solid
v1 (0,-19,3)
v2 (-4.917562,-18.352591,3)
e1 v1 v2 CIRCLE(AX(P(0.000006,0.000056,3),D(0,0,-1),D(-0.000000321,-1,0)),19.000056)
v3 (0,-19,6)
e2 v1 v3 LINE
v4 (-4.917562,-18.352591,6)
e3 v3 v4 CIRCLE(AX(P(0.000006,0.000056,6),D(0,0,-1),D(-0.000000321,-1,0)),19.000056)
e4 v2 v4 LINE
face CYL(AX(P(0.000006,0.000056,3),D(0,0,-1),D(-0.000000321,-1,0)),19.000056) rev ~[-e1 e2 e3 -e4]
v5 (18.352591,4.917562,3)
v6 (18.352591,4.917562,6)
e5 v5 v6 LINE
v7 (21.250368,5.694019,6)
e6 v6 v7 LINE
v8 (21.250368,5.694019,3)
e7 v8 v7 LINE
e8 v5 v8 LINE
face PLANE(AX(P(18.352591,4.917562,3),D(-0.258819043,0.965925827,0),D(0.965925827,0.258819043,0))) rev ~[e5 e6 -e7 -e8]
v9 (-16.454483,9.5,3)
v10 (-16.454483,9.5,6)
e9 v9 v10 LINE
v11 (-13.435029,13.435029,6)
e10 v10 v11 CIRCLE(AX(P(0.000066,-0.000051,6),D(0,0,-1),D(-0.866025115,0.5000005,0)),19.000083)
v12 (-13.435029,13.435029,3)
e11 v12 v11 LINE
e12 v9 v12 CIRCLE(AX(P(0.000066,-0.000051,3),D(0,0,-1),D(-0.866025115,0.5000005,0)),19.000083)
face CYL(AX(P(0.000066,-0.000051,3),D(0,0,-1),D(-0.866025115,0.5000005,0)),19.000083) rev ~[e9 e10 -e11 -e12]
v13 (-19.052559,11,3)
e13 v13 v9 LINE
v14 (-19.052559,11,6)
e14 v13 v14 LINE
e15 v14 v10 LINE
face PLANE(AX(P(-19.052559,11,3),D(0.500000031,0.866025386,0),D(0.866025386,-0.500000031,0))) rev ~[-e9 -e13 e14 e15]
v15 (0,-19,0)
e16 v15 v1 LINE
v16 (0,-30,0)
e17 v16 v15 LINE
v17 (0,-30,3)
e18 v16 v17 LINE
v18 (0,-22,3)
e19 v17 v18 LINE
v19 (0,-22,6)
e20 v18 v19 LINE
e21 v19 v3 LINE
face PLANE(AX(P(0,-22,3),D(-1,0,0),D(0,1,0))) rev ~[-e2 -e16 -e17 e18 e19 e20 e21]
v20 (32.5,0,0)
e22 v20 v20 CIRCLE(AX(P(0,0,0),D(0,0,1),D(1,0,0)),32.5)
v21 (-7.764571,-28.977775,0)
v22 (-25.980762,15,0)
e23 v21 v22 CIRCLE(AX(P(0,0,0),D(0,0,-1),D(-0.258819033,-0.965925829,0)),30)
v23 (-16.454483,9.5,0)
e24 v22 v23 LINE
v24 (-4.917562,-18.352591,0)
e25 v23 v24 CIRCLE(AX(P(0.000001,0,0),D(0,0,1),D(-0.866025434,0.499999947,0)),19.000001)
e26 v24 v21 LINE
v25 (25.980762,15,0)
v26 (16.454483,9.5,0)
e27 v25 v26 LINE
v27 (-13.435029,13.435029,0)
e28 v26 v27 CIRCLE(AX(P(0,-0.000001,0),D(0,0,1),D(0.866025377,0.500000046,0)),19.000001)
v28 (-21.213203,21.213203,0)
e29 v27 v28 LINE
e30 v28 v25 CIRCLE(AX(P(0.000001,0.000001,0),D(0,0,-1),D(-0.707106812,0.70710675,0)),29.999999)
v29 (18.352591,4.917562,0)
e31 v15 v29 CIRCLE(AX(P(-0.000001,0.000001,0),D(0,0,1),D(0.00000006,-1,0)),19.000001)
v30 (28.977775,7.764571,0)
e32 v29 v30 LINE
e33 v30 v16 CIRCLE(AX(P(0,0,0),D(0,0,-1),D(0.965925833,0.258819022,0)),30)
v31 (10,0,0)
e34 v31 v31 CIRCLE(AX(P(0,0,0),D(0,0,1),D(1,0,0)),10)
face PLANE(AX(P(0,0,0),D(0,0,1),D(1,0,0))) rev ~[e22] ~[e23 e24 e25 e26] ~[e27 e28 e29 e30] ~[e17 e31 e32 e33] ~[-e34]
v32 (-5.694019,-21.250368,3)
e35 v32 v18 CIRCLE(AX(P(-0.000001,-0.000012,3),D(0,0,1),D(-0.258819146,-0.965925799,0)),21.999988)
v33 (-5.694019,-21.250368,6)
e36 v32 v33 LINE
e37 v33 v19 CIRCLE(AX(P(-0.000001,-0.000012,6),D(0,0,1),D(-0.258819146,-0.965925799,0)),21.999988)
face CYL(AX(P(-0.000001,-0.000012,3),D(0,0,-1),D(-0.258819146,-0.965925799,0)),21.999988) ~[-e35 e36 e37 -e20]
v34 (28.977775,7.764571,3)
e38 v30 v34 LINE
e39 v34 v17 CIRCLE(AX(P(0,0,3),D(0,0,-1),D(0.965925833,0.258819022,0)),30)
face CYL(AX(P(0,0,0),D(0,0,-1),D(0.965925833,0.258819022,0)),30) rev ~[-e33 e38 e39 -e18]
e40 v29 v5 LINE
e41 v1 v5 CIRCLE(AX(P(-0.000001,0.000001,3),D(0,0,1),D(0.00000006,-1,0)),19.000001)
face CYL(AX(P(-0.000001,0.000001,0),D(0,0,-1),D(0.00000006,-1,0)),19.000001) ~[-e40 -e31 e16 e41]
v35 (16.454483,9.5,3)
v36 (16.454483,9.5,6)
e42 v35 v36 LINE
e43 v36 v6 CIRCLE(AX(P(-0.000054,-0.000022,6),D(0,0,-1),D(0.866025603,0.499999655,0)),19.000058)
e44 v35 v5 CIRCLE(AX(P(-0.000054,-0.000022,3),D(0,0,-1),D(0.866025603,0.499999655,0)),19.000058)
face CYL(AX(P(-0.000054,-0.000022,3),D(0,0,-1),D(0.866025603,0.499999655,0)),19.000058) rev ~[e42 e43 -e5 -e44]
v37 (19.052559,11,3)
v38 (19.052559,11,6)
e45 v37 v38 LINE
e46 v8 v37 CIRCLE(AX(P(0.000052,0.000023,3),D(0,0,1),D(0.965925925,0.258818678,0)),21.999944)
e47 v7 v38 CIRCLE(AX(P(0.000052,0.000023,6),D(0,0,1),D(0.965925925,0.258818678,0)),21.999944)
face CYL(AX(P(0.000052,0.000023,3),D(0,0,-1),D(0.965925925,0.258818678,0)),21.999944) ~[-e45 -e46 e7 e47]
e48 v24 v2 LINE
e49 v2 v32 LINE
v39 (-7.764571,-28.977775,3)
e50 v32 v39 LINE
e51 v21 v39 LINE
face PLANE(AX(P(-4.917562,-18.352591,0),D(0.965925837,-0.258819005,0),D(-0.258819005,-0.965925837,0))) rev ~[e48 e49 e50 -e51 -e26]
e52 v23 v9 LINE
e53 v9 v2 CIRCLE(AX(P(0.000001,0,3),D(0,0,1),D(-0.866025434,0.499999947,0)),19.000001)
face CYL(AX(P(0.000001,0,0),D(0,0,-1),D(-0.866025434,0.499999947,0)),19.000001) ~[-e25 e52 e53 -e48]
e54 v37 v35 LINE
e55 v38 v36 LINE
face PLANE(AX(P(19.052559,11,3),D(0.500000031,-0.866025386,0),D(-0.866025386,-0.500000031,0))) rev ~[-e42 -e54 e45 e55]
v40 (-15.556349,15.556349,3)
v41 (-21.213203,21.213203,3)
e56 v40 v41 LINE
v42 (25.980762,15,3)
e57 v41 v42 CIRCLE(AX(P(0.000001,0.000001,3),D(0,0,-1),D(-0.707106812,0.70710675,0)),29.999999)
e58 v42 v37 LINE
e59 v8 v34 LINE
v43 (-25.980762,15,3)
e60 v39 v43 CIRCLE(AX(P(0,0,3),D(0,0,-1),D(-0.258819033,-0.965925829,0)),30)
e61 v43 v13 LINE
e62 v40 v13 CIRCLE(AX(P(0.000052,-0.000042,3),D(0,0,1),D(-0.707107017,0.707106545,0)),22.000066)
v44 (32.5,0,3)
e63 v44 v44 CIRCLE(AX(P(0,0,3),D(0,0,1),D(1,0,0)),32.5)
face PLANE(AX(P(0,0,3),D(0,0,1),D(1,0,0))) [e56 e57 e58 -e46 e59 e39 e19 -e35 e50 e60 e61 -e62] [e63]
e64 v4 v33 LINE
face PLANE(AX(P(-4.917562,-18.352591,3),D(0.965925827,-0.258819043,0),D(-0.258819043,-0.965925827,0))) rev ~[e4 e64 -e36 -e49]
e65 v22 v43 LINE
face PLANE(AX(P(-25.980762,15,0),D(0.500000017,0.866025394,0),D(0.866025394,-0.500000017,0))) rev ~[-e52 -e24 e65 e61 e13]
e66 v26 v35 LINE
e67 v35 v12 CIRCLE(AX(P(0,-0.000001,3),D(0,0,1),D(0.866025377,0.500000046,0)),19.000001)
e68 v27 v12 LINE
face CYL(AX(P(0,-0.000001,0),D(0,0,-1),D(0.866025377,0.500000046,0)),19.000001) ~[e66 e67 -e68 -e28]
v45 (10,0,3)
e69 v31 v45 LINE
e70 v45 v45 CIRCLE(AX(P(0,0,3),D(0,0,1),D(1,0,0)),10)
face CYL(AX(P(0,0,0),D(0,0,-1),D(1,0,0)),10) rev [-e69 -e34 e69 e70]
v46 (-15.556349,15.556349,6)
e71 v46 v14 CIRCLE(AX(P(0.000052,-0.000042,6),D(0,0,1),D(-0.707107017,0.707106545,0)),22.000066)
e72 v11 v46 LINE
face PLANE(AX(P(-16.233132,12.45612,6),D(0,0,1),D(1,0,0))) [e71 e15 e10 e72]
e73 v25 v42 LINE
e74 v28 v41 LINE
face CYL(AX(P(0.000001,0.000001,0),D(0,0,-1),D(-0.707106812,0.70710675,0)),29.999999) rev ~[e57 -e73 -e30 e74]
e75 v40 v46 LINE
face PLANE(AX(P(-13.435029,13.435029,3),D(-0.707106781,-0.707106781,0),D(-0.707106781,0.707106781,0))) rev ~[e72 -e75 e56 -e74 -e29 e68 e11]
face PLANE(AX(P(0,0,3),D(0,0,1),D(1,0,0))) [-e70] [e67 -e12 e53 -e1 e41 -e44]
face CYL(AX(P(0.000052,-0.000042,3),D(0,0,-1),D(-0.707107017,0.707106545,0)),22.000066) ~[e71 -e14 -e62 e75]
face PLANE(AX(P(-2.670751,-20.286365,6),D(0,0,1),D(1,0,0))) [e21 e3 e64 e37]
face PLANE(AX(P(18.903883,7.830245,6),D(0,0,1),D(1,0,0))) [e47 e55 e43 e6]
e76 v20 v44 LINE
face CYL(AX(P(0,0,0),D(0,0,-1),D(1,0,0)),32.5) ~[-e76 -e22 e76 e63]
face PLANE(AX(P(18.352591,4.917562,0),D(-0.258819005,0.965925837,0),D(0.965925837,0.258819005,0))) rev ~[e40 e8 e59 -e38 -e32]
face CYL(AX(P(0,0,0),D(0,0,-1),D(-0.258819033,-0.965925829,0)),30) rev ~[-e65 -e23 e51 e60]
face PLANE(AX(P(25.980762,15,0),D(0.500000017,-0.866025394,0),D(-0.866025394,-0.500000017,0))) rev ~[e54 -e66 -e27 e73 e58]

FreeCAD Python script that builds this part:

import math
import FreeCAD as App
import Part
import Sketcher

V = App.Vector
Q = App.Units.Quantity

doc = App.newDocument("Part")
body = doc.addObject("PartDesign::Body", "Body")

sketch1 = doc.addObject("Sketcher::SketchObject", "Sketch")
body.addObject(sketch1)
sketch1.AttachmentSupport = (doc.XY_Plane, [""])
sketch1.MapMode = "FlatFace"
sketch1.addGeometry(Part.Circle(V(0, 0, 0), V(0, 0, 1), 32), False)
sketch1.addGeometry(Part.LineSegment(V(-5, -18, 0), V(-8, -29, 0)), False)
sketch1.addGeometry(Part.ArcOfCircle(Part.Circle(V(0, 0, 0), V(0, 0, 1), 30), math.radians(150), math.radians(255)), False)
sketch1.addGeometry(Part.LineSegment(V(-26, 15, 0), V(-16, 10, 0)), False)
sketch1.addGeometry(Part.ArcOfCircle(Part.Circle(V(0, 0, 0), V(0, 0, 1), 19), math.radians(150), math.radians(255)), False)
sketch1.addGeometry(Part.Circle(V(0, 0, 0), V(0, 0, 1), 10), False)
sketch1.addGeometry(Part.ArcOfCircle(Part.Circle(V(0, 0, 0), V(0, 0, 1), 30), math.radians(-90), math.radians(15)), False)
sketch1.addGeometry(Part.LineSegment(V(0, -30, 0), V(0, -19, 0)), False)
sketch1.addGeometry(Part.ArcOfCircle(Part.Circle(V(0, 0, 0), V(0, 0, 1), 19), math.radians(-90), math.radians(15)), False)
sketch1.addGeometry(Part.LineSegment(V(18, 5, 0), V(29, 8, 0)), False)
sketch1.addGeometry(Part.ArcOfCircle(Part.Circle(V(0, 0, 0), V(0, 0, 1), 30), math.radians(30), math.radians(135)), False)
sketch1.addGeometry(Part.LineSegment(V(26, 15, 0), V(16, 10, 0)), False)
sketch1.addGeometry(Part.ArcOfCircle(Part.Circle(V(0, 0, 0), V(0, 0, 1), 19), math.radians(30), math.radians(135)), False)
sketch1.addGeometry(Part.LineSegment(V(-13, 13, 0), V(-21, 21, 0)), False)
sketch1.addConstraint(Sketcher.Constraint("Coincident", 1, 2, 2, 2))
sketch1.addConstraint(Sketcher.Constraint("Coincident", 2, 1, 3, 1))
sketch1.addConstraint(Sketcher.Constraint("Coincident", 3, 2, 4, 1))
sketch1.addConstraint(Sketcher.Constraint("Coincident", 4, 2, 1, 1))
sketch1.addConstraint(Sketcher.Constraint("Coincident", 6, 1, 7, 1))
sketch1.addConstraint(Sketcher.Constraint("Coincident", 7, 2, 8, 1))
sketch1.addConstraint(Sketcher.Constraint("Coincident", 8, 2, 9, 1))
sketch1.addConstraint(Sketcher.Constraint("Coincident", 9, 2, 6, 2))
sketch1.addConstraint(Sketcher.Constraint("Coincident", 10, 1, 11, 1))
sketch1.addConstraint(Sketcher.Constraint("Coincident", 11, 2, 12, 1))
sketch1.addConstraint(Sketcher.Constraint("Coincident", 12, 2, 13, 1))
sketch1.addConstraint(Sketcher.Constraint("Coincident", 13, 2, 10, 2))
sketch1.addConstraint(Sketcher.Constraint("Vertical", 7))
sketch1.addConstraint(Sketcher.Constraint("Coincident", 0, 3, -1, 1))
sketch1.addConstraint(Sketcher.Constraint("Coincident", 2, 3, -1, 1))
sketch1.addConstraint(Sketcher.Constraint("Coincident", 4, 3, -1, 1))
sketch1.addConstraint(Sketcher.Constraint("Coincident", 5, 3, -1, 1))
sketch1.addConstraint(Sketcher.Constraint("Coincident", 6, 3, -1, 1))
sketch1.addConstraint(Sketcher.Constraint("Coincident", 8, 3, -1, 1))
sketch1.addConstraint(Sketcher.Constraint("Coincident", 10, 3, -1, 1))
sketch1.addConstraint(Sketcher.Constraint("Coincident", 12, 3, -1, 1))
sketch1.addConstraint(Sketcher.Constraint("Equal", 2, 6))
sketch1.addConstraint(Sketcher.Constraint("Equal", 4, 8))
sketch1.addConstraint(Sketcher.Constraint("Equal", 6, 10))
sketch1.addConstraint(Sketcher.Constraint("Equal", 8, 12))
sketch1.addConstraint(Sketcher.Constraint("PointOnObject", 6, 1, -2))
sketch1.addConstraint(Sketcher.Constraint("Horizontal", 2, 1, 10, 1))
sketch1.addConstraint(Sketcher.Constraint("Horizontal", 3, 2, 11, 2))
sketch1.addConstraint(Sketcher.Constraint("Diameter", 0, 65.0))
sketch1.addConstraint(Sketcher.Constraint("Diameter", 5, 20.0))
sketch1.addConstraint(Sketcher.Constraint("Radius", 2, 30.0))
sketch1.addConstraint(Sketcher.Constraint("Radius", 4, 19.000001))
sketch1.addConstraint(Sketcher.Constraint("Angle", 1, Q("-104.999998 deg")))
sketch1.addConstraint(Sketcher.Constraint("Angle", 3, Q("-30.000001 deg")))
sketch1.addConstraint(Sketcher.Constraint("Angle", 9, Q("14.999998 deg")))
sketch1.addConstraint(Sketcher.Constraint("Angle", 13, Q("135 deg")))
sketch1.addConstraint(Sketcher.Constraint("DistanceY", -1, 1, 2, 1, 15.0))
sketch1.addConstraint(Sketcher.Constraint("DistanceX", 13, 2, 8, 3, 21.213202))
sketch1.addConstraint(Sketcher.Constraint("DistanceX", 1, 2, -1, 1, 7.764571))
sketch1.addConstraint(Sketcher.Constraint("DistanceX", -1, 1, 8, 2, 18.352591))
pad1 = doc.addObject("PartDesign::Pad", "Pad")
body.addObject(pad1)
pad1.Profile = sketch1
pad1.Length = 3

sketch2 = doc.addObject("Sketcher::SketchObject", "Sketch001")
body.addObject(sketch2)
sketch2.AttachmentSupport = (doc.XY_Plane, [""])
sketch2.MapMode = "FlatFace"
sketch2.AttachmentOffset = App.Placement(V(0, 0, 3), App.Rotation())
sketch2.addGeometry(Part.ArcOfCircle(Part.Circle(V(0.000006, 0.000056, 0), V(0, 0, 1), 19.000056), math.radians(-104.999974), math.radians(-90.000018)), False)
sketch2.addGeometry(Part.LineSegment(V(-4.917562, -18.352591, 0), V(-5.694019, -21.250368, 0)), False)
sketch2.addGeometry(Part.ArcOfCircle(Part.Circle(V(-0.000001, -0.000012, 0), V(0, 0, 1), 21.999988), math.radians(-105.000006), math.radians(-89.999998)), False)
sketch2.addGeometry(Part.LineSegment(V(0, -22, 0), V(0, -19, 0)), False)
sketch2.addGeometry(Part.LineSegment(V(-19.052559, 11, 0), V(-16.454483, 9.5, 0)), False)
sketch2.addGeometry(Part.ArcOfCircle(Part.Circle(V(0.000066, -0.000051, 0), V(0, 0, 1), 19.000083), math.radians(135.000032), math.radians(149.999967)), False)
sketch2.addGeometry(Part.LineSegment(V(-13.435029, 13.435029, 0), V(-15.556349, 15.556349, 0)), False)
sketch2.addGeometry(Part.ArcOfCircle(Part.Circle(V(0.000052, -0.000042, 0), V(0, 0, 1), 22.000066), math.radians(135.000019), math.radians(149.999974)), False)
sketch2.addGeometry(Part.LineSegment(V(19.052559, 11, 0), V(16.454483, 9.5, 0)), False)
sketch2.addGeometry(Part.ArcOfCircle(Part.Circle(V(-0.000054, -0.000022, 0), V(0, 0, 1), 19.000058), math.radians(15.000024), math.radians(29.999977)), False)
sketch2.addGeometry(Part.LineSegment(V(18.352591, 4.917562, 0), V(21.250368, 5.694019, 0)), False)
sketch2.addGeometry(Part.ArcOfCircle(Part.Circle(V(0.000052, 0.000023, 0), V(0, 0, 1), 21.999944), math.radians(14.999978), math.radians(30.000016)), False)
sketch2.addConstraint(Sketcher.Constraint("Coincident", 0, 1, 1, 1))
sketch2.addConstraint(Sketcher.Constraint("Coincident", 1, 2, 2, 1))
sketch2.addConstraint(Sketcher.Constraint("Coincident", 2, 2, 3, 1))
sketch2.addConstraint(Sketcher.Constraint("Coincident", 3, 2, 0, 2))
sketch2.addConstraint(Sketcher.Constraint("Coincident", 4, 2, 5, 2))
sketch2.addConstraint(Sketcher.Constraint("Coincident", 5, 1, 6, 1))
sketch2.addConstraint(Sketcher.Constraint("Coincident", 6, 2, 7, 1))
sketch2.addConstraint(Sketcher.Constraint("Coincident", 7, 2, 4, 1))
sketch2.addConstraint(Sketcher.Constraint("Coincident", 8, 2, 9, 2))
sketch2.addConstraint(Sketcher.Constraint("Coincident", 9, 1, 10, 1))
sketch2.addConstraint(Sketcher.Constraint("Coincident", 10, 2, 11, 1))
sketch2.addConstraint(Sketcher.Constraint("Coincident", 11, 2, 8, 1))
sketch2.addConstraint(Sketcher.Constraint("Vertical", 3))
sketch2.addConstraint(Sketcher.Constraint("Equal", 0, 9))
sketch2.addConstraint(Sketcher.Constraint("Symmetric", 9, 3, 11, 3, -1, 1))
sketch2.addConstraint(Sketcher.Constraint("Symmetric", 4, 2, 8, 2, -2))
sketch2.addConstraint(Sketcher.Constraint("Symmetric", 7, 2, 11, 2, -2))
sketch2.addConstraint(Sketcher.Constraint("PointOnObject", 2, 3, -2))
sketch2.addConstraint(Sketcher.Constraint("PointOnObject", 2, 2, -2))
sketch2.addConstraint(Sketcher.Constraint("Vertical", 7, 3, 11, 3))
sketch2.addConstraint(Sketcher.Constraint("Equal", 1, 4))
sketch2.addConstraint(Sketcher.Constraint("Equal", 4, 6))
sketch2.addConstraint(Sketcher.Constraint("Equal", 8, 10))
sketch2.addConstraint(Sketcher.Constraint("DistanceY", 3, 1, 3, 2, 3.0))
sketch2.addConstraint(Sketcher.Constraint("Angle", 1, Q("-105 deg")))
sketch2.addConstraint(Sketcher.Constraint("Angle", 4, Q("-30.000002 deg")))
sketch2.addConstraint(Sketcher.Constraint("Angle", 6, Q("135 deg")))
sketch2.addConstraint(Sketcher.Constraint("Angle", 10, Q("15 deg")))
sketch2.addConstraint(Sketcher.Constraint("Distance", 1, 3.0))
sketch2.addConstraint(Sketcher.Constraint("DistanceY", 2, 2, -1, 1, 22.0))
sketch2.addConstraint(Sketcher.Constraint("DistanceY", -1, 1, 7, 2, 11.0))
sketch2.addConstraint(Sketcher.Constraint("Radius", 0, 19.000056))
sketch2.addConstraint(Sketcher.Constraint("Radius", 2, 21.999988))
sketch2.addConstraint(Sketcher.Constraint("Radius", 5, 19.000083))
sketch2.addConstraint(Sketcher.Constraint("Radius", 7, 22.000066))
sketch2.addConstraint(Sketcher.Constraint("Radius", 11, 21.999944))
sketch2.addConstraint(Sketcher.Constraint("DistanceX", 5, 3, 10, 2, 21.250302))
sketch2.addConstraint(Sketcher.Constraint("DistanceY", 0, 1, -1, 1, 18.352591))
sketch2.addConstraint(Sketcher.Constraint("DistanceX", 5, 1, -1, 1, 13.435029))
pad2 = doc.addObject("PartDesign::Pad", "Pad001")
body.addObject(pad2)
pad2.Profile = sketch2
pad2.Length = 3

doc.recompute()
